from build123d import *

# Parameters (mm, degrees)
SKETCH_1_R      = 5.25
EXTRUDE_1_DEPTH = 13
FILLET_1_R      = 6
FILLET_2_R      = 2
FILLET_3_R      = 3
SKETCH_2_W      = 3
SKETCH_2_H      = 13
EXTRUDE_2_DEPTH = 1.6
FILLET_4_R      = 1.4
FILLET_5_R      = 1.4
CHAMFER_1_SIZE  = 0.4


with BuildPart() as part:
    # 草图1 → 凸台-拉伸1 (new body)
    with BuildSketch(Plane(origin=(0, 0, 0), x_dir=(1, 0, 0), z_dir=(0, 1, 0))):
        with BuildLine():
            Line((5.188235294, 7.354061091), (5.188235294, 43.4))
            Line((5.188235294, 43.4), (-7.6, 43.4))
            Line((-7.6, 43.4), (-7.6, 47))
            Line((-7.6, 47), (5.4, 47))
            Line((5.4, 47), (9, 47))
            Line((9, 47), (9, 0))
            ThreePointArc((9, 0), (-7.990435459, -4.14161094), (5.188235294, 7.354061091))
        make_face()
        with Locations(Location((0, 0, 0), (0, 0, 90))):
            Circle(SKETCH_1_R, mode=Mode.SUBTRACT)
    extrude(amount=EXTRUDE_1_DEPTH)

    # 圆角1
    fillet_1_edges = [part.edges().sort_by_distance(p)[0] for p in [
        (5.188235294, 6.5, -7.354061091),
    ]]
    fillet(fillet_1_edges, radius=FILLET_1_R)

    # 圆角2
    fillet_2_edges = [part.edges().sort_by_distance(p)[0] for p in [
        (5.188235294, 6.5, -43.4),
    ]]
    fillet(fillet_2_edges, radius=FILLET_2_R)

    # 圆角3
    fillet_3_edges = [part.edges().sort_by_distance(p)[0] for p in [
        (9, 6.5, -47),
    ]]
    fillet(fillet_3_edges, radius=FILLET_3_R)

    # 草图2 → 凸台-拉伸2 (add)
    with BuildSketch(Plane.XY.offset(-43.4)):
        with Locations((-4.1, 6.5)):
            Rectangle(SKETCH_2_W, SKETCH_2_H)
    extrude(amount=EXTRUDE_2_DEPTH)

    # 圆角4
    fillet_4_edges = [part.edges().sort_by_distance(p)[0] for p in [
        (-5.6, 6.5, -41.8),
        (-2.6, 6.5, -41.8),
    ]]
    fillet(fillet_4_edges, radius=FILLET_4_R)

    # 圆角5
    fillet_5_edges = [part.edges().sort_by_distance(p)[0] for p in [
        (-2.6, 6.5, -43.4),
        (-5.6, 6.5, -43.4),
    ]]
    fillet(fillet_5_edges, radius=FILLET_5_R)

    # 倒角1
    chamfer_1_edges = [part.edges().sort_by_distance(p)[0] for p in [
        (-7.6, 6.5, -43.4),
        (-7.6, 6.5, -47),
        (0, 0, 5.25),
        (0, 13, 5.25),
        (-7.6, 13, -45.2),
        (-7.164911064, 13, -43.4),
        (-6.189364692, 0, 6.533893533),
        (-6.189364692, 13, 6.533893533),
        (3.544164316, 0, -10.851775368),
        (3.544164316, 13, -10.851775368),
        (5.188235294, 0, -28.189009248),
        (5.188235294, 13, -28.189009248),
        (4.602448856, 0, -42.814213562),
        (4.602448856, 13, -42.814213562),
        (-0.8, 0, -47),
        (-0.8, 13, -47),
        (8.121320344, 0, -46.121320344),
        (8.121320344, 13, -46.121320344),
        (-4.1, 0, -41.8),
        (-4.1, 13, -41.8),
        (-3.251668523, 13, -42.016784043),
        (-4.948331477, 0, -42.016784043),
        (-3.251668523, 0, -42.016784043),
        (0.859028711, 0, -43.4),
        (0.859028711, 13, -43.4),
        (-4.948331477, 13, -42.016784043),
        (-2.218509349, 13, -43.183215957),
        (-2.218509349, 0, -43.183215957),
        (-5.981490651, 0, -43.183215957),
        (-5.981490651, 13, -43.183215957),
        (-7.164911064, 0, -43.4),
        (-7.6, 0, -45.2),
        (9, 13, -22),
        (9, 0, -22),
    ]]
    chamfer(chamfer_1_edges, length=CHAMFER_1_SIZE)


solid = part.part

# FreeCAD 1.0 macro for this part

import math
import FreeCAD as App
import Part
import Sketcher
from FreeCAD import Vector


def edges_at(feature, points):
    """Names of the edges that pass closest to the given points."""
    edges = feature.Shape.Edges
    near = lambda p: min(range(len(edges)), key=lambda i: edges[i].distToShape(Part.Vertex(*p))[0])
    return sorted({f"Edge{near(p) + 1}" for p in points})

doc = App.newDocument("Part")
body = doc.addObject("PartDesign::Body", "Body")

sketch1 = body.newObject("Sketcher::SketchObject", "Sketch")
sketch1.AttachmentSupport = (doc.getObject("XZ_Plane"), [""])
sketch1.MapMode = "FlatFace"
sketch1.addGeometry([
    Part.LineSegment(Vector(5.2, -43.4, 0), Vector(5.2, -7.4, 0)),
    Part.ArcOfCircle(Part.Circle(Vector(0, 0, 0), Vector(0, 0, 1), 9), math.radians(0), math.radians(305)),
    Part.LineSegment(Vector(9, 0, 0), Vector(9, -47, 0)),
    Part.LineSegment(Vector(9, -47, 0), Vector(-7.6, -47, 0)),
    Part.LineSegment(Vector(-7.6, -47, 0), Vector(-7.6, -43.4, 0)),
    Part.LineSegment(Vector(-7.6, -43.4, 0), Vector(5.2, -43.4, 0)),
    Part.Circle(Vector(0, 0, 0), Vector(0, 0, 1), 5.2),
], False)
sketch1.addConstraint([
    Sketcher.Constraint("Coincident", 0, 2, 1, 2),
    Sketcher.Constraint("Tangent", 1, 1, 2, 1),
    Sketcher.Constraint("Coincident", 2, 2, 3, 1),
    Sketcher.Constraint("Coincident", 3, 2, 4, 1),
    Sketcher.Constraint("Coincident", 4, 2, 5, 1),
    Sketcher.Constraint("Coincident", 5, 2, 0, 1),
    Sketcher.Constraint("Vertical", 0),
    Sketcher.Constraint("Vertical", 2),
    Sketcher.Constraint("Horizontal", 3),
    Sketcher.Constraint("Vertical", 4),
    Sketcher.Constraint("Horizontal", 5),
    Sketcher.Constraint("Coincident", 1, 3, -1, 1),
    Sketcher.Constraint("Coincident", 6, 3, -1, 1),
    Sketcher.Constraint("Radius", 1, 9.0),
    Sketcher.Constraint("Diameter", 6, 10.5),
    Sketcher.Constraint("DistanceY", 2, 2, 2, 1, 47.0),
    Sketcher.Constraint("DistanceX", 3, 2, 3, 1, 16.6),
    Sketcher.Constraint("DistanceY", 4, 1, 4, 2, 3.6),
    Sketcher.Constraint("DistanceY", 0, 1, 0, 2, 36.045939),
])
pad1 = body.newObject("PartDesign::Pad", "Pad")
pad1.Profile = sketch1
pad1.Length = 13
pad1.Reversed = True
doc.recompute()

fillet = body.newObject("PartDesign::Fillet", "Fillet")
fillet.Base = (pad1, edges_at(pad1, [(5.188, 6.5, -7.354)]))
fillet.Radius = 6
doc.recompute()

fillet2 = body.newObject("PartDesign::Fillet", "Fillet001")
fillet2.Base = (fillet, edges_at(fillet, [(5.188, 6.5, -43.4)]))
fillet2.Radius = 2
doc.recompute()

fillet3 = body.newObject("PartDesign::Fillet", "Fillet002")
fillet3.Base = (fillet2, edges_at(fillet2, [(9, 6.5, -47)]))
fillet3.Radius = 3

sketch2 = body.newObject("Sketcher::SketchObject", "Sketch001")
sketch2.AttachmentSupport = (doc.getObject("XY_Plane"), [""])
sketch2.MapMode = "FlatFace"
sketch2.AttachmentOffset = App.Placement(Vector(0, 0, -43.4), App.Rotation())
sketch2.addGeometry([
    Part.LineSegment(Vector(-5.6, 13, 0), Vector(-5.6, 0, 0)),
    Part.LineSegment(Vector(-5.6, 0, 0), Vector(-2.6, 0, 0)),
    Part.LineSegment(Vector(-2.6, 0, 0), Vector(-2.6, 13, 0)),
    Part.LineSegment(Vector(-2.6, 13, 0), Vector(-5.6, 13, 0)),
], False)
sketch2.addConstraint([
    Sketcher.Constraint("Coincident", 0, 2, 1, 1),
    Sketcher.Constraint("Coincident", 1, 2, 2, 1),
    Sketcher.Constraint("Coincident", 2, 2, 3, 1),
    Sketcher.Constraint("Coincident", 3, 2, 0, 1),
    Sketcher.Constraint("Vertical", 0),
    Sketcher.Constraint("Horizontal", 1),
    Sketcher.Constraint("Vertical", 2),
    Sketcher.Constraint("Horizontal", 3),
    Sketcher.Constraint("PointOnObject", 0, 2, -1),
    Sketcher.Constraint("DistanceX", 1, 1, 1, 2, 3.0),
    Sketcher.Constraint("DistanceY", 0, 2, 0, 1, 13.0),
    Sketcher.Constraint("DistanceX", 0, 2, -1, 1, 5.6),
])
pad2 = body.newObject("PartDesign::Pad", "Pad001")
pad2.Profile = sketch2
pad2.Length = 1.6
doc.recompute()

fillet4 = body.newObject("PartDesign::Fillet", "Fillet003")
fillet4.Base = (pad2, edges_at(pad2, [(-5.6, 6.5, -41.8), (-2.6, 6.5, -41.8)]))
fillet4.Radius = 1.4
doc.recompute()

fillet5 = body.newObject("PartDesign::Fillet", "Fillet004")
fillet5.Base = (fillet4, edges_at(fillet4, [(-2.6, 6.5, -43.4), (-5.6, 6.5, -43.4)]))
fillet5.Radius = 1.4
doc.recompute()

chamfer = body.newObject("PartDesign::Chamfer", "Chamfer")
chamfer.Base = (fillet5, ["Edge1"])
chamfer.UseAllEdges = True
chamfer.Size = 0.4

doc.recompute()
